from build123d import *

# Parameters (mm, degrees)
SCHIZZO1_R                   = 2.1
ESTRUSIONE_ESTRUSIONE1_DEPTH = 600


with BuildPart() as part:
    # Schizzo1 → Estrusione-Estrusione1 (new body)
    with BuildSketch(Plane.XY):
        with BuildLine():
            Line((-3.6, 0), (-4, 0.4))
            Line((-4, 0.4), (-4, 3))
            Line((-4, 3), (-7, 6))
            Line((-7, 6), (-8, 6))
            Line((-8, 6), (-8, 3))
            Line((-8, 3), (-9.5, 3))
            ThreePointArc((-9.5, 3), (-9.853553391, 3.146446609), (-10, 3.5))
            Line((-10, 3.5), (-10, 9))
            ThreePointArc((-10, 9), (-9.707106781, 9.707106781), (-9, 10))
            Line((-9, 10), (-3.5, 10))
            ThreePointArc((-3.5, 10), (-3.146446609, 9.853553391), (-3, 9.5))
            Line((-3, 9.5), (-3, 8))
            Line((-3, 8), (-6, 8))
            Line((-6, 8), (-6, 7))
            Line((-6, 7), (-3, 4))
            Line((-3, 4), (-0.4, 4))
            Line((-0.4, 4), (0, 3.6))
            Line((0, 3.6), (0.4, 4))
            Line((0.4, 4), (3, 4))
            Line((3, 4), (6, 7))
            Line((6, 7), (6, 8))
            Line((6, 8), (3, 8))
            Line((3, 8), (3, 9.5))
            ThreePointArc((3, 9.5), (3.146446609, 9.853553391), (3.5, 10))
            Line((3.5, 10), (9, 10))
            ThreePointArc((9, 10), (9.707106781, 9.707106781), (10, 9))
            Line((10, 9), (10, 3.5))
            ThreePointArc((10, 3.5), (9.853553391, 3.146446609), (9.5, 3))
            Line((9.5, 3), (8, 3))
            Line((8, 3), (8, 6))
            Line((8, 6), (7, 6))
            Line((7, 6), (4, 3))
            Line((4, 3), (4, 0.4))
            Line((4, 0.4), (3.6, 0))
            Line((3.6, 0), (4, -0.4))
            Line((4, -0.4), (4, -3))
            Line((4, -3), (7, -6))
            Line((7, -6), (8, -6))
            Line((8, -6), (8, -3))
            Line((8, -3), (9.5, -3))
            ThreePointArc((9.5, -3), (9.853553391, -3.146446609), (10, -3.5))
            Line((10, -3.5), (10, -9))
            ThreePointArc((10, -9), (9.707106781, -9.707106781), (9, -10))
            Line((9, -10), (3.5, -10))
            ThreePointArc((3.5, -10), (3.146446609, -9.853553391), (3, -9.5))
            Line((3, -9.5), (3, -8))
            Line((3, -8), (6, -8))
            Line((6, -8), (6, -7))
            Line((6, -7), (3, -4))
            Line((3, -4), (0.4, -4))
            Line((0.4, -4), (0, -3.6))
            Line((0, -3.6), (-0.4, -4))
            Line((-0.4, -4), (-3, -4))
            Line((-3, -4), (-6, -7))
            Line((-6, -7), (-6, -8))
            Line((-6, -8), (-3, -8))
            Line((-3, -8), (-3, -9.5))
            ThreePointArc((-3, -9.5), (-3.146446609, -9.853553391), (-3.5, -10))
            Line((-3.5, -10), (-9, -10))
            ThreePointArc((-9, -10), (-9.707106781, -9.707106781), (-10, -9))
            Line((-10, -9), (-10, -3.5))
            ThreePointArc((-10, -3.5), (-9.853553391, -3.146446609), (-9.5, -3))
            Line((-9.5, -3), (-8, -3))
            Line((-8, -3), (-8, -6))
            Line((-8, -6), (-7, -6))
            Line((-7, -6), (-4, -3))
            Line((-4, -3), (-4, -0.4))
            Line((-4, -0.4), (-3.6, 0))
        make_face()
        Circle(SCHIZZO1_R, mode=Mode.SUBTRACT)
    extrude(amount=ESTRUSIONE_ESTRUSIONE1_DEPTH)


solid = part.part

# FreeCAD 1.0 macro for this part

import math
import FreeCAD as App
import Part
import Sketcher

V = App.Vector
Q = App.Units.Quantity

doc = App.newDocument("Part")
body = doc.addObject("PartDesign::Body", "Body")

# Sketch on XY plane
sketch1 = doc.addObject("Sketcher::SketchObject", "Sketch")
body.addObject(sketch1)
sketch1.AttachmentSupport = (doc.XY_Plane, [""])
sketch1.MapMode = "FlatFace"
sketch1.addGeometry(Part.LineSegment(V(-4, 0.4, 0), V(-3.6, 0, 0)), False)
sketch1.addGeometry(Part.LineSegment(V(-3.6, 0, 0), V(-4, -0.4, 0)), False)
sketch1.addGeometry(Part.LineSegment(V(-4, -0.4, 0), V(-4, -3, 0)), False)
sketch1.addGeometry(Part.LineSegment(V(-4, -3, 0), V(-7, -6, 0)), False)
sketch1.addGeometry(Part.LineSegment(V(-7, -6, 0), V(-8, -6, 0)), False)
sketch1.addGeometry(Part.LineSegment(V(-8, -6, 0), V(-8, -3, 0)), False)
sketch1.addGeometry(Part.LineSegment(V(-8, -3, 0), V(-9.5, -3, 0)), False)
sketch1.addGeometry(Part.ArcOfCircle(Part.Circle(V(-9.5, -3.5, 0), V(0, 0, 1), 0.5), math.radians(90), math.radians(180)), False)
sketch1.addGeometry(Part.LineSegment(V(-10, -3.5, 0), V(-10, -9, 0)), False)
sketch1.addGeometry(Part.ArcOfCircle(Part.Circle(V(-9, -9, 0), V(0, 0, 1), 1), math.radians(-180), math.radians(-90)), False)
sketch1.addGeometry(Part.LineSegment(V(-9, -10, 0), V(-3.5, -10, 0)), False)
sketch1.addGeometry(Part.ArcOfCircle(Part.Circle(V(-3.5, -9.5, 0), V(0, 0, 1), 0.5), math.radians(-90), math.radians(0)), False)
sketch1.addGeometry(Part.LineSegment(V(-3, -9.5, 0), V(-3, -8, 0)), False)
sketch1.addGeometry(Part.LineSegment(V(-3, -8, 0), V(-6, -8, 0)), False)
sketch1.addGeometry(Part.LineSegment(V(-6, -8, 0), V(-6, -7, 0)), False)
sketch1.addGeometry(Part.LineSegment(V(-6, -7, 0), V(-3, -4, 0)), False)
sketch1.addGeometry(Part.LineSegment(V(-3, -4, 0), V(-0.4, -4, 0)), False)
sketch1.addGeometry(Part.LineSegment(V(-0.4, -4, 0), V(0, -3.6, 0)), False)
sketch1.addGeometry(Part.LineSegment(V(0, -3.6, 0), V(0.4, -4, 0)), False)
sketch1.addGeometry(Part.LineSegment(V(0.4, -4, 0), V(3, -4, 0)), False)
sketch1.addGeometry(Part.LineSegment(V(3, -4, 0), V(6, -7, 0)), False)
sketch1.addGeometry(Part.LineSegment(V(6, -7, 0), V(6, -8, 0)), False)
sketch1.addGeometry(Part.LineSegment(V(6, -8, 0), V(3, -8, 0)), False)
sketch1.addGeometry(Part.LineSegment(V(3, -8, 0), V(3, -9.5, 0)), False)
sketch1.addGeometry(Part.ArcOfCircle(Part.Circle(V(3.5, -9.5, 0), V(0, 0, 1), 0.5), math.radians(180), math.radians(270)), False)
sketch1.addGeometry(Part.LineSegment(V(3.5, -10, 0), V(9, -10, 0)), False)
sketch1.addGeometry(Part.ArcOfCircle(Part.Circle(V(9, -9, 0), V(0, 0, 1), 1), math.radians(-90), math.radians(0)), False)
sketch1.addGeometry(Part.LineSegment(V(10, -9, 0), V(10, -3.5, 0)), False)
sketch1.addGeometry(Part.ArcOfCircle(Part.Circle(V(9.5, -3.5, 0), V(0, 0, 1), 0.5), math.radians(0), math.radians(90)), False)
sketch1.addGeometry(Part.LineSegment(V(9.5, -3, 0), V(8, -3, 0)), False)
sketch1.addGeometry(Part.LineSegment(V(8, -3, 0), V(8, -6, 0)), False)
sketch1.addGeometry(Part.LineSegment(V(8, -6, 0), V(7, -6, 0)), False)
sketch1.addGeometry(Part.LineSegment(V(7, -6, 0), V(4, -3, 0)), False)
sketch1.addGeometry(Part.LineSegment(V(4, -3, 0), V(4, -0.4, 0)), False)
sketch1.addGeometry(Part.LineSegment(V(4, -0.4, 0), V(3.6, 0, 0)), False)
sketch1.addGeometry(Part.LineSegment(V(3.6, 0, 0), V(4, 0.4, 0)), False)
sketch1.addGeometry(Part.LineSegment(V(4, 0.4, 0), V(4, 3, 0)), False)
sketch1.addGeometry(Part.LineSegment(V(4, 3, 0), V(7, 6, 0)), False)
sketch1.addGeometry(Part.LineSegment(V(7, 6, 0), V(8, 6, 0)), False)
sketch1.addGeometry(Part.LineSegment(V(8, 6, 0), V(8, 3, 0)), False)
sketch1.addGeometry(Part.LineSegment(V(8, 3, 0), V(9.5, 3, 0)), False)
sketch1.addGeometry(Part.ArcOfCircle(Part.Circle(V(9.5, 3.5, 0), V(0, 0, 1), 0.5), math.radians(-90), math.radians(0)), False)
sketch1.addGeometry(Part.LineSegment(V(10, 3.5, 0), V(10, 9, 0)), False)
sketch1.addGeometry(Part.ArcOfCircle(Part.Circle(V(9, 9, 0), V(0, 0, 1), 1), math.radians(0), math.radians(90)), False)
sketch1.addGeometry(Part.LineSegment(V(9, 10, 0), V(3.5, 10, 0)), False)
sketch1.addGeometry(Part.ArcOfCircle(Part.Circle(V(3.5, 9.5, 0), V(0, 0, 1), 0.5), math.radians(90), math.radians(180)), False)
sketch1.addGeometry(Part.LineSegment(V(3, 9.5, 0), V(3, 8, 0)), False)
sketch1.addGeometry(Part.LineSegment(V(3, 8, 0), V(6, 8, 0)), False)
sketch1.addGeometry(Part.LineSegment(V(6, 8, 0), V(6, 7, 0)), False)
sketch1.addGeometry(Part.LineSegment(V(6, 7, 0), V(3, 4, 0)), False)
sketch1.addGeometry(Part.LineSegment(V(3, 4, 0), V(0.4, 4, 0)), False)
sketch1.addGeometry(Part.LineSegment(V(0.4, 4, 0), V(0, 3.6, 0)), False)
sketch1.addGeometry(Part.LineSegment(V(0, 3.6, 0), V(-0.4, 4, 0)), False)
sketch1.addGeometry(Part.LineSegment(V(-0.4, 4, 0), V(-3, 4, 0)), False)
sketch1.addGeometry(Part.LineSegment(V(-3, 4, 0), V(-6, 7, 0)), False)
sketch1.addGeometry(Part.LineSegment(V(-6, 7, 0), V(-6, 8, 0)), False)
sketch1.addGeometry(Part.LineSegment(V(-6, 8, 0), V(-3, 8, 0)), False)
sketch1.addGeometry(Part.LineSegment(V(-3, 8, 0), V(-3, 9.5, 0)), False)
sketch1.addGeometry(Part.ArcOfCircle(Part.Circle(V(-3.5, 9.5, 0), V(0, 0, 1), 0.5), math.radians(0), math.radians(90)), False)
sketch1.addGeometry(Part.LineSegment(V(-3.5, 10, 0), V(-9, 10, 0)), False)
sketch1.addGeometry(Part.ArcOfCircle(Part.Circle(V(-9, 9, 0), V(0, 0, 1), 1), math.radians(90), math.radians(180)), False)
sketch1.addGeometry(Part.LineSegment(V(-10, 9, 0), V(-10, 3.5, 0)), False)
sketch1.addGeometry(Part.ArcOfCircle(Part.Circle(V(-9.5, 3.5, 0), V(0, 0, 1), 0.5), math.radians(180), math.radians(270)), False)
sketch1.addGeometry(Part.LineSegment(V(-9.5, 3, 0), V(-8, 3, 0)), False)
sketch1.addGeometry(Part.LineSegment(V(-8, 3, 0), V(-8, 6, 0)), False)
sketch1.addGeometry(Part.LineSegment(V(-8, 6, 0), V(-7, 6, 0)), False)
sketch1.addGeometry(Part.LineSegment(V(-7, 6, 0), V(-4, 3, 0)), False)
sketch1.addGeometry(Part.LineSegment(V(-4, 3, 0), V(-4, 0.4, 0)), False)
sketch1.addGeometry(Part.Circle(V(0, 0, 0), V(0, 0, 1), 2.1), False)
sketch1.addConstraint(Sketcher.Constraint("Coincident", 0, 2, 1, 1))
sketch1.addConstraint(Sketcher.Constraint("Coincident", 1, 2, 2, 1))
sketch1.addConstraint(Sketcher.Constraint("Coincident", 2, 2, 3, 1))
sketch1.addConstraint(Sketcher.Constraint("Coincident", 3, 2, 4, 1))
sketch1.addConstraint(Sketcher.Constraint("Coincident", 4, 2, 5, 1))
sketch1.addConstraint(Sketcher.Constraint("Coincident", 5, 2, 6, 1))
sketch1.addConstraint(Sketcher.Constraint("Tangent", 6, 2, 7, 1))
sketch1.addConstraint(Sketcher.Constraint("Tangent", 7, 2, 8, 1))
sketch1.addConstraint(Sketcher.Constraint("Tangent", 8, 2, 9, 1))
sketch1.addConstraint(Sketcher.Constraint("Tangent", 9, 2, 10, 1))
sketch1.addConstraint(Sketcher.Constraint("Tangent", 10, 2, 11, 1))
sketch1.addConstraint(Sketcher.Constraint("Tangent", 11, 2, 12, 1))
sketch1.addConstraint(Sketcher.Constraint("Coincident", 12, 2, 13, 1))
sketch1.addConstraint(Sketcher.Constraint("Coincident", 13, 2, 14, 1))
sketch1.addConstraint(Sketcher.Constraint("Coincident", 14, 2, 15, 1))
sketch1.addConstraint(Sketcher.Constraint("Coincident", 15, 2, 16, 1))
sketch1.addConstraint(Sketcher.Constraint("Coincident", 16, 2, 17, 1))
sketch1.addConstraint(Sketcher.Constraint("Coincident", 17, 2, 18, 1))
sketch1.addConstraint(Sketcher.Constraint("Coincident", 18, 2, 19, 1))
sketch1.addConstraint(Sketcher.Constraint("Coincident", 19, 2, 20, 1))
sketch1.addConstraint(Sketcher.Constraint("Coincident", 20, 2, 21, 1))
sketch1.addConstraint(Sketcher.Constraint("Coincident", 21, 2, 22, 1))
sketch1.addConstraint(Sketcher.Constraint("Coincident", 22, 2, 23, 1))
sketch1.addConstraint(Sketcher.Constraint("Tangent", 23, 2, 24, 1))
sketch1.addConstraint(Sketcher.Constraint("Tangent", 24, 2, 25, 1))
sketch1.addConstraint(Sketcher.Constraint("Tangent", 25, 2, 26, 1))
sketch1.addConstraint(Sketcher.Constraint("Tangent", 26, 2, 27, 1))
sketch1.addConstraint(Sketcher.Constraint("Tangent", 27, 2, 28, 1))
sketch1.addConstraint(Sketcher.Constraint("Tangent", 28, 2, 29, 1))
sketch1.addConstraint(Sketcher.Constraint("Coincident", 29, 2, 30, 1))
sketch1.addConstraint(Sketcher.Constraint("Coincident", 30, 2, 31, 1))
sketch1.addConstraint(Sketcher.Constraint("Coincident", 31, 2, 32, 1))
sketch1.addConstraint(Sketcher.Constraint("Coincident", 32, 2, 33, 1))
sketch1.addConstraint(Sketcher.Constraint("Coincident", 33, 2, 34, 1))
sketch1.addConstraint(Sketcher.Constraint("Coincident", 34, 2, 35, 1))
sketch1.addConstraint(Sketcher.Constraint("Coincident", 35, 2, 36, 1))
sketch1.addConstraint(Sketcher.Constraint("Coincident", 36, 2, 37, 1))
sketch1.addConstraint(Sketcher.Constraint("Coincident", 37, 2, 38, 1))
sketch1.addConstraint(Sketcher.Constraint("Coincident", 38, 2, 39, 1))
sketch1.addConstraint(Sketcher.Constraint("Coincident", 39, 2, 40, 1))
sketch1.addConstraint(Sketcher.Constraint("Tangent", 40, 2, 41, 1))
sketch1.addConstraint(Sketcher.Constraint("Tangent", 41, 2, 42, 1))
sketch1.addConstraint(Sketcher.Constraint("Tangent", 42, 2, 43, 1))
sketch1.addConstraint(Sketcher.Constraint("Tangent", 43, 2, 44, 1))
sketch1.addConstraint(Sketcher.Constraint("Tangent", 44, 2, 45, 1))
sketch1.addConstraint(Sketcher.Constraint("Tangent", 45, 2, 46, 1))
sketch1.addConstraint(Sketcher.Constraint("Coincident", 46, 2, 47, 1))
sketch1.addConstraint(Sketcher.Constraint("Coincident", 47, 2, 48, 1))
sketch1.addConstraint(Sketcher.Constraint("Coincident", 48, 2, 49, 1))
sketch1.addConstraint(Sketcher.Constraint("Coincident", 49, 2, 50, 1))
sketch1.addConstraint(Sketcher.Constraint("Coincident", 50, 2, 51, 1))
sketch1.addConstraint(Sketcher.Constraint("Coincident", 51, 2, 52, 1))
sketch1.addConstraint(Sketcher.Constraint("Coincident", 52, 2, 53, 1))
sketch1.addConstraint(Sketcher.Constraint("Coincident", 53, 2, 54, 1))
sketch1.addConstraint(Sketcher.Constraint("Coincident", 54, 2, 55, 1))
sketch1.addConstraint(Sketcher.Constraint("Coincident", 55, 2, 56, 1))
sketch1.addConstraint(Sketcher.Constraint("Coincident", 56, 2, 57, 1))
sketch1.addConstraint(Sketcher.Constraint("Tangent", 57, 2, 58, 1))
sketch1.addConstraint(Sketcher.Constraint("Tangent", 58, 2, 59, 1))
sketch1.addConstraint(Sketcher.Constraint("Tangent", 59, 2, 60, 1))
sketch1.addConstraint(Sketcher.Constraint("Tangent", 60, 2, 61, 1))
sketch1.addConstraint(Sketcher.Constraint("Tangent", 61, 2, 62, 1))
sketch1.addConstraint(Sketcher.Constraint("Tangent", 62, 2, 63, 1))
sketch1.addConstraint(Sketcher.Constraint("Coincident", 63, 2, 64, 1))
sketch1.addConstraint(Sketcher.Constraint("Coincident", 64, 2, 65, 1))
sketch1.addConstraint(Sketcher.Constraint("Coincident", 65, 2, 66, 1))
sketch1.addConstraint(Sketcher.Constraint("Coincident", 66, 2, 67, 1))
sketch1.addConstraint(Sketcher.Constraint("Coincident", 67, 2, 0, 1))
sketch1.addConstraint(Sketcher.Constraint("Vertical", 2))
sketch1.addConstraint(Sketcher.Constraint("Horizontal", 4))
sketch1.addConstraint(Sketcher.Constraint("Vertical", 5))
sketch1.addConstraint(Sketcher.Constraint("Horizontal", 6))
sketch1.addConstraint(Sketcher.Constraint("Vertical", 8))
sketch1.addConstraint(Sketcher.Constraint("Horizontal", 10))
sketch1.addConstraint(Sketcher.Constraint("Vertical", 12))
sketch1.addConstraint(Sketcher.Constraint("Horizontal", 13))
sketch1.addConstraint(Sketcher.Constraint("Vertical", 14))
sketch1.addConstraint(Sketcher.Constraint("Horizontal", 16))
sketch1.addConstraint(Sketcher.Constraint("Horizontal", 19))
sketch1.addConstraint(Sketcher.Constraint("Vertical", 21))
sketch1.addConstraint(Sketcher.Constraint("Horizontal", 22))
sketch1.addConstraint(Sketcher.Constraint("Vertical", 23))
sketch1.addConstraint(Sketcher.Constraint("Horizontal", 25))
sketch1.addConstraint(Sketcher.Constraint("Vertical", 27))
sketch1.addConstraint(Sketcher.Constraint("Horizontal", 29))
sketch1.addConstraint(Sketcher.Constraint("Vertical", 30))
sketch1.addConstraint(Sketcher.Constraint("Horizontal", 31))
sketch1.addConstraint(Sketcher.Constraint("Vertical", 33))
sketch1.addConstraint(Sketcher.Constraint("Vertical", 36))
sketch1.addConstraint(Sketcher.Constraint("Horizontal", 38))
sketch1.addConstraint(Sketcher.Constraint("Vertical", 39))
sketch1.addConstraint(Sketcher.Constraint("Horizontal", 40))
sketch1.addConstraint(Sketcher.Constraint("Vertical", 42))
sketch1.addConstraint(Sketcher.Constraint("Horizontal", 44))
sketch1.addConstraint(Sketcher.Constraint("Vertical", 46))
sketch1.addConstraint(Sketcher.Constraint("Horizontal", 47))
sketch1.addConstraint(Sketcher.Constraint("Vertical", 48))
sketch1.addConstraint(Sketcher.Constraint("Horizontal", 50))
sketch1.addConstraint(Sketcher.Constraint("Horizontal", 53))
sketch1.addConstraint(Sketcher.Constraint("Vertical", 55))
sketch1.addConstraint(Sketcher.Constraint("Horizontal", 56))
sketch1.addConstraint(Sketcher.Constraint("Vertical", 57))
sketch1.addConstraint(Sketcher.Constraint("Horizontal", 59))
sketch1.addConstraint(Sketcher.Constraint("Vertical", 61))
sketch1.addConstraint(Sketcher.Constraint("Horizontal", 63))
sketch1.addConstraint(Sketcher.Constraint("Vertical", 64))
sketch1.addConstraint(Sketcher.Constraint("Horizontal", 65))
sketch1.addConstraint(Sketcher.Constraint("Vertical", 67))
sketch1.addConstraint(Sketcher.Constraint("Coincident", 68, 3, -1, 1))
sketch1.addConstraint(Sketcher.Constraint("Equal", 7, 11))
sketch1.addConstraint(Sketcher.Constraint("Equal", 11, 24))
sketch1.addConstraint(Sketcher.Constraint("Equal", 9, 26))
sketch1.addConstraint(Sketcher.Constraint("Equal", 24, 28))
sketch1.addConstraint(Sketcher.Constraint("Equal", 28, 41))
sketch1.addConstraint(Sketcher.Constraint("Equal", 26, 43))
sketch1.addConstraint(Sketcher.Constraint("Equal", 41, 45))
sketch1.addConstraint(Sketcher.Constraint("Equal", 45, 58))
sketch1.addConstraint(Sketcher.Constraint("Equal", 43, 60))
sketch1.addConstraint(Sketcher.Constraint("Equal", 58, 62))
sketch1.addConstraint(Sketcher.Constraint("Symmetric", 7, 3, 41, 3, -1, 1))
sketch1.addConstraint(Sketcher.Constraint("Symmetric", 11, 3, 45, 3, -1, 1))
sketch1.addConstraint(Sketcher.Constraint("Symmetric", 24, 3, 58, 3, -1, 1))
sketch1.addConstraint(Sketcher.Constraint("Symmetric", 28, 3, 62, 3, -1, 1))
sketch1.addConstraint(Sketcher.Constraint("Symmetric", 0, 2, 34, 2, -1, 1))
sketch1.addConstraint(Sketcher.Constraint("Symmetric", 1, 2, 35, 2, -1, 1))
sketch1.addConstraint(Sketcher.Constraint("Symmetric", 3, 2, 37, 2, -1, 1))
sketch1.addConstraint(Sketcher.Constraint("Symmetric", 13, 2, 47, 2, -1, 1))
sketch1.addConstraint(Sketcher.Constraint("Symmetric", 15, 2, 49, 2, -1, 1))
sketch1.addConstraint(Sketcher.Constraint("Symmetric", 17, 2, 51, 2, -1, 1))
sketch1.addConstraint(Sketcher.Constraint("Symmetric", 18, 2, 52, 2, -1, 1))
sketch1.addConstraint(Sketcher.Constraint("Symmetric", 20, 2, 54, 2, -1, 1))
sketch1.addConstraint(Sketcher.Constraint("Symmetric", 30, 2, 64, 2, -1, 1))
sketch1.addConstraint(Sketcher.Constraint("Symmetric", 32, 2, 66, 2, -1, 1))
sketch1.addConstraint(Sketcher.Constraint("Symmetric", 11, 3, 24, 3, -2))
sketch1.addConstraint(Sketcher.Constraint("Symmetric", 7, 3, 28, 3, -2))
sketch1.addConstraint(Sketcher.Constraint("Symmetric", 16, 2, 18, 2, -2))
sketch1.addConstraint(Sketcher.Constraint("Symmetric", 14, 2, 20, 2, -2))
sketch1.addConstraint(Sketcher.Constraint("Symmetric", 4, 2, 30, 2, -2))
sketch1.addConstraint(Sketcher.Constraint("Symmetric", 2, 2, 32, 2, -2))
sketch1.addConstraint(Sketcher.Constraint("PointOnObject", 0, 2, -1))
sketch1.addConstraint(Sketcher.Constraint("PointOnObject", 17, 2, -2))
sketch1.addConstraint(Sketcher.Constraint("Perpendicular", 0, 1))
sketch1.addConstraint(Sketcher.Constraint("Parallel", 1, 3))
sketch1.addConstraint(Sketcher.Constraint("Parallel", 3, 15))
sketch1.addConstraint(Sketcher.Constraint("Parallel", 15, 17))
sketch1.addConstraint(Sketcher.Constraint("Perpendicular", 17, 18))
sketch1.addConstraint(Sketcher.Constraint("Parallel", 18, 20))
sketch1.addConstraint(Sketcher.Constraint("Parallel", 20, 32))
sketch1.addConstraint(Sketcher.Constraint("Parallel", 32, 34))
sketch1.addConstraint(Sketcher.Constraint("Parallel", 35, 37))
sketch1.addConstraint(Sketcher.Constraint("Parallel", 37, 49))
sketch1.addConstraint(Sketcher.Constraint("Parallel", 49, 51))
sketch1.addConstraint(Sketcher.Constraint("Parallel", 52, 54))
sketch1.addConstraint(Sketcher.Constraint("Parallel", 54, 66))
sketch1.addConstraint(Sketcher.Constraint("Horizontal", 2, 2, 5, 2))
sketch1.addConstraint(Sketcher.Constraint("Horizontal", 13, 2, 21, 2))
sketch1.addConstraint(Sketcher.Constraint("Horizontal", 47, 2, 55, 2))
sketch1.addConstraint(Sketcher.Constraint("Vertical", 12, 2, 15, 2))
sketch1.addConstraint(Sketcher.Constraint("Vertical", 30, 2, 38, 2))
sketch1.addConstraint(Sketcher.Constraint("Equal", 53, 2))
sketch1.addConstraint(Sketcher.Constraint("Equal", 56, 5))
sketch1.addConstraint(Sketcher.Constraint("Equal", 59, 8))
sketch1.addConstraint(Sketcher.Constraint("Equal", 63, 12))
sketch1.addConstraint(Sketcher.Constraint("Equal", 65, 14))
sketch1.addConstraint(Sketcher.Constraint("Equal", 1, 17))
sketch1.addConstraint(Sketcher.Constraint("Radius", 9, Q("1 mm")))
sketch1.addConstraint(Sketcher.Constraint("Diameter", 68, Q("4.2 mm")))
sketch1.addConstraint(Sketcher.Constraint("Radius", 7, Q("0.5 mm")))
sketch1.addConstraint(Sketcher.Constraint("DistanceX", 4, 2, 4, 1, Q("1 mm")))
sketch1.addConstraint(Sketcher.Constraint("DistanceX", 13, 2, 13, 1, Q("3 mm")))
sketch1.addConstraint(Sketcher.Constraint("DistanceX", 6, 2, 6, 1, Q("1.5 mm")))
sketch1.addConstraint(Sketcher.Constraint("DistanceX", 10, 1, 10, 2, Q("5.5 mm")))
sketch1.addConstraint(Sketcher.Constraint("DistanceX", 16, 1, 16, 2, Q("2.6 mm")))
sketch1.addConstraint(Sketcher.Constraint("DistanceX", 9, 3, -1, 1, Q("9 mm")))
pad1 = doc.addObject("PartDesign::Pad", "Pad")
body.addObject(pad1)
pad1.Profile = sketch1
pad1.Length = 600

doc.recompute()
